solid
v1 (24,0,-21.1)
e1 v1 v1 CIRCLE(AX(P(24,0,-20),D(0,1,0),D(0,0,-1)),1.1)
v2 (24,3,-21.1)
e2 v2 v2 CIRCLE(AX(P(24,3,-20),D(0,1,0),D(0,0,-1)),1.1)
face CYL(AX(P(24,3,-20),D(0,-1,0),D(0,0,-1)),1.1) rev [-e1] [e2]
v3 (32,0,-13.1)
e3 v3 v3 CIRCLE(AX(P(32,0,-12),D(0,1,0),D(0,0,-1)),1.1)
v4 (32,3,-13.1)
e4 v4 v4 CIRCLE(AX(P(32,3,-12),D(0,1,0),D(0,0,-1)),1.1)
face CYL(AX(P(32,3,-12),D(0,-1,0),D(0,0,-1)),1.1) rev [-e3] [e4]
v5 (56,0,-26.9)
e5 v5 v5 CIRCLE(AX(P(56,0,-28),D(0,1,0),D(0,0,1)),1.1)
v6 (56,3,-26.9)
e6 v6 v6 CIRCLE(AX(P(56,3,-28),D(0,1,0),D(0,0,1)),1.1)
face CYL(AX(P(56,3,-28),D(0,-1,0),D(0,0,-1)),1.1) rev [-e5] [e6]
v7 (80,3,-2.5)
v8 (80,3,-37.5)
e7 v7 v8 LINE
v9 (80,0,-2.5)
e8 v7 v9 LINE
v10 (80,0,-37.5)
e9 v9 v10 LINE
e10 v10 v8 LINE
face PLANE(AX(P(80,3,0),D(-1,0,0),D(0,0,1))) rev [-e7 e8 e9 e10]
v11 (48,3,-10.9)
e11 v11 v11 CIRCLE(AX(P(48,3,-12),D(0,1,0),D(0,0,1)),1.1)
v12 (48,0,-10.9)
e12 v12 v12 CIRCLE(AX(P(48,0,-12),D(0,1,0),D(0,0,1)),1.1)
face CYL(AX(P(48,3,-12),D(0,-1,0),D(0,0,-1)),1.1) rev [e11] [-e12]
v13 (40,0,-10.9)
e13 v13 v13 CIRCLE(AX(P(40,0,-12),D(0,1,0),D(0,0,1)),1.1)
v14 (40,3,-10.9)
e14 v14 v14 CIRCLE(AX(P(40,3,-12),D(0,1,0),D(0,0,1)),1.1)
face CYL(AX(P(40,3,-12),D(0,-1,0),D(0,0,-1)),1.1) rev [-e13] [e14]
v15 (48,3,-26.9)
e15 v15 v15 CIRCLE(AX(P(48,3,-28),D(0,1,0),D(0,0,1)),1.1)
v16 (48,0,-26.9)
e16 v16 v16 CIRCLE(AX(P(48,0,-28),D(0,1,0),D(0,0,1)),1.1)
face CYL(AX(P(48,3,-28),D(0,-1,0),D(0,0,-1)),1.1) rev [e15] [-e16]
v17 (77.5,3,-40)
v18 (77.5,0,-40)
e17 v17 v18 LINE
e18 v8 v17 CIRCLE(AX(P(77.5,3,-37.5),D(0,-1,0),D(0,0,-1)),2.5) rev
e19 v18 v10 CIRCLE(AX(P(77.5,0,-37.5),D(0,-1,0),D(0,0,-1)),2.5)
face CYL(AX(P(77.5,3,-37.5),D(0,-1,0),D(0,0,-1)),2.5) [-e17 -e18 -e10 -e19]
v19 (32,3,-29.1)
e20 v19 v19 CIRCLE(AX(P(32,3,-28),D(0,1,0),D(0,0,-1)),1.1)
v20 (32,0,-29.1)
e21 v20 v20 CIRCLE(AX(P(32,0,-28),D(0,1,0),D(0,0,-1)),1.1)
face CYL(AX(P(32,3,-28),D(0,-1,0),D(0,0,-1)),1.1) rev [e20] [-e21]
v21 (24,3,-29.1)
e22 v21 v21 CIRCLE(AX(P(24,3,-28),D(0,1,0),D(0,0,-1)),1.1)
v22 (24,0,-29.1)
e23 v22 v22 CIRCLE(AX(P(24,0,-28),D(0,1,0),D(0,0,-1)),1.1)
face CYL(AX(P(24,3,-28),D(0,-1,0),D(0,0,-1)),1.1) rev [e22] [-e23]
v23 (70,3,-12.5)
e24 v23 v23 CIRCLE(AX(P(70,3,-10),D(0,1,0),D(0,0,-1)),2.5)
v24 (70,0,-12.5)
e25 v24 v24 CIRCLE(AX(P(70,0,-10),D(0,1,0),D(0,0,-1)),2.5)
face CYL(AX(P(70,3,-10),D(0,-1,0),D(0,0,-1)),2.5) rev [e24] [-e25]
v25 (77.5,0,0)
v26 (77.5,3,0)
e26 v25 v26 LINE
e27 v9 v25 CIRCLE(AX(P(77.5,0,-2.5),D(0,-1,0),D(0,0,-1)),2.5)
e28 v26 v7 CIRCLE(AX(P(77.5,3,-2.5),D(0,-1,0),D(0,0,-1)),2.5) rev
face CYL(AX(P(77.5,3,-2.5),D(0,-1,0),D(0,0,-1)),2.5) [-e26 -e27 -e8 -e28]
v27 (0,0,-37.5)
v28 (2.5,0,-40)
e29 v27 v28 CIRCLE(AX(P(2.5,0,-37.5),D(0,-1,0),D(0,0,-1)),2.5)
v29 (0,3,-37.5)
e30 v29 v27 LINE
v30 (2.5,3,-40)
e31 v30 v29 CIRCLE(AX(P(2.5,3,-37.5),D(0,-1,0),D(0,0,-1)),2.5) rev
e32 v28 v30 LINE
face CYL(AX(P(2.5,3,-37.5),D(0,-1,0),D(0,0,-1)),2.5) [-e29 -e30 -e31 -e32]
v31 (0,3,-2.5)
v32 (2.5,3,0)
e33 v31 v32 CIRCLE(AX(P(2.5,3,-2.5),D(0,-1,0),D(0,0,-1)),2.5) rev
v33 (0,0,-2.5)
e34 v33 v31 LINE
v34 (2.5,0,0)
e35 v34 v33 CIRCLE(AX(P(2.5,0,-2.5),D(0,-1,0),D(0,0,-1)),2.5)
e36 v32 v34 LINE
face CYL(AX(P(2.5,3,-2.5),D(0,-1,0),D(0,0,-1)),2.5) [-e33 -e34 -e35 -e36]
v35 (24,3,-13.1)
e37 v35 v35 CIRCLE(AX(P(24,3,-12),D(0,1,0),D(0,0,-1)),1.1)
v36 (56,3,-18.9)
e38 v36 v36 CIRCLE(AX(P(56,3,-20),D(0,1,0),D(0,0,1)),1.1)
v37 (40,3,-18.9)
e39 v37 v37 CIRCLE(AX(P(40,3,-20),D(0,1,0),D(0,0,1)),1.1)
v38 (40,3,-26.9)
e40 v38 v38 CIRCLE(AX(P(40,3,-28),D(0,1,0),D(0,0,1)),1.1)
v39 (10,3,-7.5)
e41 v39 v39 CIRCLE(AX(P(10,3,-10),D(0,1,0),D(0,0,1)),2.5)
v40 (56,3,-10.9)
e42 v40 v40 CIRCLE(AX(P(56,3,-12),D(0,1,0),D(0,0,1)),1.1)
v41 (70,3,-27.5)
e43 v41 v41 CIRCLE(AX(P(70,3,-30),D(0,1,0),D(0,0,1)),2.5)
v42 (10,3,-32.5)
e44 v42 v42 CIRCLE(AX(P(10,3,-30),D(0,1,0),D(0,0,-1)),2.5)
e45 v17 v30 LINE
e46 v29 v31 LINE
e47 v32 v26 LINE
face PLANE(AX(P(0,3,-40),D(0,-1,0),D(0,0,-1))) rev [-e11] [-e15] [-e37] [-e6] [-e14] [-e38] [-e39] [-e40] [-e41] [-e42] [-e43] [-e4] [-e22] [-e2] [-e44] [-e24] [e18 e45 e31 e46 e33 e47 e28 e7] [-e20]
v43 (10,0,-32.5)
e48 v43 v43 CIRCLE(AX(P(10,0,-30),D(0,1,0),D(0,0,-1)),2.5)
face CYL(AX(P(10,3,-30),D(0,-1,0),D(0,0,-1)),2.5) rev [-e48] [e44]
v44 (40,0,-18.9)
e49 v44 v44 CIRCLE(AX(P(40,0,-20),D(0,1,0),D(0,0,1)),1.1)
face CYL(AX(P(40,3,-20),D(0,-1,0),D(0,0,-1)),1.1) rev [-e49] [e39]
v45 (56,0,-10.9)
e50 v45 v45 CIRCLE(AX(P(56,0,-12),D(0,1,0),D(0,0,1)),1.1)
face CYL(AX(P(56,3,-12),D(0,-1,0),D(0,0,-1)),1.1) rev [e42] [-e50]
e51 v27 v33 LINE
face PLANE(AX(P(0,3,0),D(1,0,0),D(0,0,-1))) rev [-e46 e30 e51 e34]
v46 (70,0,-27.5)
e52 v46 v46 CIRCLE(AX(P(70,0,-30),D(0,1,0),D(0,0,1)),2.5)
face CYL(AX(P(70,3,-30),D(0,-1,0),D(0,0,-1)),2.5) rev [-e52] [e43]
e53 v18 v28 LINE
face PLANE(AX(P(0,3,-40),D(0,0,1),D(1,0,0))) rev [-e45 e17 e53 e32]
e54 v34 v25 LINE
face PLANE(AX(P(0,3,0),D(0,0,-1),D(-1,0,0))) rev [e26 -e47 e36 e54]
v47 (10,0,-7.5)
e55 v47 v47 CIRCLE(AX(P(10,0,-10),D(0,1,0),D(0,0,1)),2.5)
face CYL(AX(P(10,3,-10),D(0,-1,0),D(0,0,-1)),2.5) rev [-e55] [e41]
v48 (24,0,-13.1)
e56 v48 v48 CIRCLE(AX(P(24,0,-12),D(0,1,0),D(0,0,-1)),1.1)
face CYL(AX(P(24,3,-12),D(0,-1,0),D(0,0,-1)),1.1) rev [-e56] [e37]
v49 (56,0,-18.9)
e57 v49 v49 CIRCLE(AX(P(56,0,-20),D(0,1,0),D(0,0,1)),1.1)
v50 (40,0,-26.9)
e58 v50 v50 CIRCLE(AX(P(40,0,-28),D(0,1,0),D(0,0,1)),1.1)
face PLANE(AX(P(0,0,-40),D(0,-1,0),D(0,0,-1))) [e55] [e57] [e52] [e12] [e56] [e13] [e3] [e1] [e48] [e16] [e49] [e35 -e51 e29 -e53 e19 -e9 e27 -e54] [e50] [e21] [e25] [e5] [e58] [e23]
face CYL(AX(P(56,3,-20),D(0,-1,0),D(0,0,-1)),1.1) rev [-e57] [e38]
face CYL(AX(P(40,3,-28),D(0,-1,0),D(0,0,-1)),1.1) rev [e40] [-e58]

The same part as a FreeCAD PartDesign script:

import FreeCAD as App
import Part
import Sketcher
from FreeCAD import Vector
Q = App.Units.Quantity


def edges_at(feature, points):
    """Names of the edges that pass closest to the given points."""
    edges = feature.Shape.Edges
    near = lambda p: min(range(len(edges)), key=lambda i: edges[i].distToShape(Part.Vertex(*p))[0])
    return sorted({f"Edge{near(p) + 1}" for p in points})

doc = App.newDocument("Part")
params = doc.addObject("Spreadsheet::Sheet", "Params")
for row, (alias, value) in enumerate([
    ("sketch1_diameter", "5 mm"),
    ("sketch1_diameter2", "2.2 mm"),
    ("sketch1_width", "80 mm"),
    ("sketch1_height", "40 mm"),
    ("pad1_length", "3 mm"),
    ("fillet_radius", "2.5 mm"),
], start=1):
    params.set(f"A{row}", alias)
    params.set(f"B{row}", "=" + value)
    params.setAlias(f"B{row}", alias)

body = doc.addObject("PartDesign::Body", "Body")

# Sketch on XZ plane
sketch1 = body.newObject("Sketcher::SketchObject", "Sketch")
sketch1.AttachmentSupport = (doc.getObject("XZ_Plane"), [""])
sketch1.MapMode = "FlatFace"
sketch1.addGeometry([
    Part.LineSegment(Vector(0, -40, 0), Vector(0, 0, 0)),  # 0
    Part.LineSegment(Vector(0, 0, 0), Vector(80, 0, 0)),  # 1
    Part.LineSegment(Vector(80, 0, 0), Vector(80, -40, 0)),  # 2
    Part.LineSegment(Vector(80, -40, 0), Vector(0, -40, 0)),  # 3
    Part.Circle(Vector(10, -10, 0), Vector(0, 0, 1), 2.5),  # 4
    Part.Circle(Vector(24, -12, 0), Vector(0, 0, 1), 1.1),  # 5
    Part.Circle(Vector(32, -12, 0), Vector(0, 0, 1), 1.1),  # 6
    Part.Circle(Vector(40, -12, 0), Vector(0, 0, 1), 1.1),  # 7
    Part.Circle(Vector(48, -12, 0), Vector(0, 0, 1), 1.1),  # 8
    Part.Circle(Vector(56, -12, 0), Vector(0, 0, 1), 1.1),  # 9
    Part.Circle(Vector(70, -10, 0), Vector(0, 0, 1), 2.5),  # 10
    Part.Circle(Vector(24, -20, 0), Vector(0, 0, 1), 1.1),  # 11
    Part.Circle(Vector(10, -30, 0), Vector(0, 0, 1), 2.5),  # 12
    Part.Circle(Vector(24, -28, 0), Vector(0, 0, 1), 1.1),  # 13
    Part.Circle(Vector(32, -28, 0), Vector(0, 0, 1), 1.1),  # 14
    Part.Circle(Vector(40, -20, 0), Vector(0, 0, 1), 1.1),  # 15
    Part.Circle(Vector(56, -20, 0), Vector(0, 0, 1), 1.1),  # 16
    Part.Circle(Vector(40, -28, 0), Vector(0, 0, 1), 1.1),  # 17
    Part.Circle(Vector(48, -28, 0), Vector(0, 0, 1), 1.1),  # 18
    Part.Circle(Vector(56, -28, 0), Vector(0, 0, 1), 1.1),  # 19
    Part.Circle(Vector(70, -30, 0), Vector(0, 0, 1), 2.5),  # 20
], False)
sketch1.addConstraint([
    Sketcher.Constraint("Coincident", 0, 2, 1, 1),
    Sketcher.Constraint("Coincident", 1, 2, 2, 1),
    Sketcher.Constraint("Coincident", 2, 2, 3, 1),
    Sketcher.Constraint("Coincident", 3, 2, 0, 1),
    Sketcher.Constraint("Vertical", 0),
    Sketcher.Constraint("Horizontal", 1),
    Sketcher.Constraint("Vertical", 2),
    Sketcher.Constraint("Horizontal", 3),
    Sketcher.Constraint("Coincident", 0, 2, -1, 1),
    Sketcher.Constraint("Equal", 5, 6),
    Sketcher.Constraint("Equal", 6, 7),
    Sketcher.Constraint("Equal", 7, 8),
    Sketcher.Constraint("Equal", 8, 9),
    Sketcher.Constraint("Equal", 4, 10),
    Sketcher.Constraint("Equal", 9, 11),
    Sketcher.Constraint("Equal", 10, 12),
    Sketcher.Constraint("Equal", 11, 13),
    Sketcher.Constraint("Equal", 13, 14),
    Sketcher.Constraint("Equal", 14, 15),
    Sketcher.Constraint("Equal", 15, 16),
    Sketcher.Constraint("Equal", 16, 17),
    Sketcher.Constraint("Equal", 17, 18),
    Sketcher.Constraint("Equal", 18, 19),
    Sketcher.Constraint("Equal", 12, 20),
    Sketcher.Constraint("Horizontal", 5, 3, 6, 3),
    Sketcher.Constraint("Horizontal", 6, 3, 7, 3),
    Sketcher.Constraint("Horizontal", 7, 3, 8, 3),
    Sketcher.Constraint("Horizontal", 8, 3, 9, 3),
    Sketcher.Constraint("Horizontal", 4, 3, 10, 3),
    Sketcher.Constraint("Horizontal", 13, 3, 14, 3),
    Sketcher.Constraint("Horizontal", 11, 3, 15, 3),
    Sketcher.Constraint("Horizontal", 15, 3, 16, 3),
    Sketcher.Constraint("Horizontal", 14, 3, 17, 3),
    Sketcher.Constraint("Horizontal", 17, 3, 18, 3),
    Sketcher.Constraint("Horizontal", 18, 3, 19, 3),
    Sketcher.Constraint("Horizontal", 12, 3, 20, 3),
    Sketcher.Constraint("Vertical", 5, 3, 11, 3),
    Sketcher.Constraint("Vertical", 4, 3, 12, 3),
    Sketcher.Constraint("Vertical", 11, 3, 13, 3),
    Sketcher.Constraint("Vertical", 6, 3, 14, 3),
    Sketcher.Constraint("Vertical", 7, 3, 15, 3),
    Sketcher.Constraint("Vertical", 9, 3, 16, 3),
    Sketcher.Constraint("Vertical", 15, 3, 17, 3),
    Sketcher.Constraint("Vertical", 8, 3, 18, 3),
    Sketcher.Constraint("Vertical", 16, 3, 19, 3),
    Sketcher.Constraint("Vertical", 10, 3, 20, 3),
    Sketcher.Constraint("Diameter", 4, Q("5 mm")),
    Sketcher.Constraint("Diameter", 5, Q("2.2 mm")),
    Sketcher.Constraint("DistanceX", 1, 1, 1, 2, Q("80 mm")),
    Sketcher.Constraint("DistanceY", 0, 1, 0, 2, Q("40 mm")),
    Sketcher.Constraint("DistanceX", -1, 1, 4, 3, Q("10 mm")),
    Sketcher.Constraint("DistanceY", 4, 3, -1, 1, Q("10 mm")),
    Sketcher.Constraint("DistanceX", -1, 1, 5, 3, Q("24 mm")),
    Sketcher.Constraint("DistanceY", 5, 3, -1, 1, Q("12 mm")),
    Sketcher.Constraint("DistanceX", -1, 1, 6, 3, Q("32 mm")),
    Sketcher.Constraint("DistanceX", -1, 1, 7, 3, Q("40 mm")),
    Sketcher.Constraint("DistanceX", -1, 1, 8, 3, Q("48 mm")),
    Sketcher.Constraint("DistanceX", -1, 1, 9, 3, Q("56 mm")),
    Sketcher.Constraint("DistanceX", -1, 1, 10, 3, Q("70 mm")),
    Sketcher.Constraint("DistanceY", 11, 3, -1, 1, Q("20 mm")),
    Sketcher.Constraint("DistanceY", 12, 3, -1, 1, Q("30 mm")),
    Sketcher.Constraint("DistanceY", 13, 3, -1, 1, Q("28 mm")),
])
sketch1.setExpression("Constraints[46]", "Params.sketch1_diameter")
sketch1.setExpression("Constraints[47]", "Params.sketch1_diameter2")
sketch1.setExpression("Constraints[48]", "Params.sketch1_width")
sketch1.setExpression("Constraints[49]", "Params.sketch1_height")
pad1 = body.newObject("PartDesign::Pad", "Pad")
pad1.Profile = sketch1
pad1.setExpression("Length", "Params.pad1_length")
pad1.Reversed = True
doc.recompute()

fillet = body.newObject("PartDesign::Fillet", "Fillet")
fillet.Base = (pad1, edges_at(pad1, [
    (0, 1.5, -40),
    (80, 1.5, -40),
    (80, 1.5, 0),
    (0, 1.5, 0),
]))
fillet.setExpression("Radius", "Params.fillet_radius")

doc.recompute()
